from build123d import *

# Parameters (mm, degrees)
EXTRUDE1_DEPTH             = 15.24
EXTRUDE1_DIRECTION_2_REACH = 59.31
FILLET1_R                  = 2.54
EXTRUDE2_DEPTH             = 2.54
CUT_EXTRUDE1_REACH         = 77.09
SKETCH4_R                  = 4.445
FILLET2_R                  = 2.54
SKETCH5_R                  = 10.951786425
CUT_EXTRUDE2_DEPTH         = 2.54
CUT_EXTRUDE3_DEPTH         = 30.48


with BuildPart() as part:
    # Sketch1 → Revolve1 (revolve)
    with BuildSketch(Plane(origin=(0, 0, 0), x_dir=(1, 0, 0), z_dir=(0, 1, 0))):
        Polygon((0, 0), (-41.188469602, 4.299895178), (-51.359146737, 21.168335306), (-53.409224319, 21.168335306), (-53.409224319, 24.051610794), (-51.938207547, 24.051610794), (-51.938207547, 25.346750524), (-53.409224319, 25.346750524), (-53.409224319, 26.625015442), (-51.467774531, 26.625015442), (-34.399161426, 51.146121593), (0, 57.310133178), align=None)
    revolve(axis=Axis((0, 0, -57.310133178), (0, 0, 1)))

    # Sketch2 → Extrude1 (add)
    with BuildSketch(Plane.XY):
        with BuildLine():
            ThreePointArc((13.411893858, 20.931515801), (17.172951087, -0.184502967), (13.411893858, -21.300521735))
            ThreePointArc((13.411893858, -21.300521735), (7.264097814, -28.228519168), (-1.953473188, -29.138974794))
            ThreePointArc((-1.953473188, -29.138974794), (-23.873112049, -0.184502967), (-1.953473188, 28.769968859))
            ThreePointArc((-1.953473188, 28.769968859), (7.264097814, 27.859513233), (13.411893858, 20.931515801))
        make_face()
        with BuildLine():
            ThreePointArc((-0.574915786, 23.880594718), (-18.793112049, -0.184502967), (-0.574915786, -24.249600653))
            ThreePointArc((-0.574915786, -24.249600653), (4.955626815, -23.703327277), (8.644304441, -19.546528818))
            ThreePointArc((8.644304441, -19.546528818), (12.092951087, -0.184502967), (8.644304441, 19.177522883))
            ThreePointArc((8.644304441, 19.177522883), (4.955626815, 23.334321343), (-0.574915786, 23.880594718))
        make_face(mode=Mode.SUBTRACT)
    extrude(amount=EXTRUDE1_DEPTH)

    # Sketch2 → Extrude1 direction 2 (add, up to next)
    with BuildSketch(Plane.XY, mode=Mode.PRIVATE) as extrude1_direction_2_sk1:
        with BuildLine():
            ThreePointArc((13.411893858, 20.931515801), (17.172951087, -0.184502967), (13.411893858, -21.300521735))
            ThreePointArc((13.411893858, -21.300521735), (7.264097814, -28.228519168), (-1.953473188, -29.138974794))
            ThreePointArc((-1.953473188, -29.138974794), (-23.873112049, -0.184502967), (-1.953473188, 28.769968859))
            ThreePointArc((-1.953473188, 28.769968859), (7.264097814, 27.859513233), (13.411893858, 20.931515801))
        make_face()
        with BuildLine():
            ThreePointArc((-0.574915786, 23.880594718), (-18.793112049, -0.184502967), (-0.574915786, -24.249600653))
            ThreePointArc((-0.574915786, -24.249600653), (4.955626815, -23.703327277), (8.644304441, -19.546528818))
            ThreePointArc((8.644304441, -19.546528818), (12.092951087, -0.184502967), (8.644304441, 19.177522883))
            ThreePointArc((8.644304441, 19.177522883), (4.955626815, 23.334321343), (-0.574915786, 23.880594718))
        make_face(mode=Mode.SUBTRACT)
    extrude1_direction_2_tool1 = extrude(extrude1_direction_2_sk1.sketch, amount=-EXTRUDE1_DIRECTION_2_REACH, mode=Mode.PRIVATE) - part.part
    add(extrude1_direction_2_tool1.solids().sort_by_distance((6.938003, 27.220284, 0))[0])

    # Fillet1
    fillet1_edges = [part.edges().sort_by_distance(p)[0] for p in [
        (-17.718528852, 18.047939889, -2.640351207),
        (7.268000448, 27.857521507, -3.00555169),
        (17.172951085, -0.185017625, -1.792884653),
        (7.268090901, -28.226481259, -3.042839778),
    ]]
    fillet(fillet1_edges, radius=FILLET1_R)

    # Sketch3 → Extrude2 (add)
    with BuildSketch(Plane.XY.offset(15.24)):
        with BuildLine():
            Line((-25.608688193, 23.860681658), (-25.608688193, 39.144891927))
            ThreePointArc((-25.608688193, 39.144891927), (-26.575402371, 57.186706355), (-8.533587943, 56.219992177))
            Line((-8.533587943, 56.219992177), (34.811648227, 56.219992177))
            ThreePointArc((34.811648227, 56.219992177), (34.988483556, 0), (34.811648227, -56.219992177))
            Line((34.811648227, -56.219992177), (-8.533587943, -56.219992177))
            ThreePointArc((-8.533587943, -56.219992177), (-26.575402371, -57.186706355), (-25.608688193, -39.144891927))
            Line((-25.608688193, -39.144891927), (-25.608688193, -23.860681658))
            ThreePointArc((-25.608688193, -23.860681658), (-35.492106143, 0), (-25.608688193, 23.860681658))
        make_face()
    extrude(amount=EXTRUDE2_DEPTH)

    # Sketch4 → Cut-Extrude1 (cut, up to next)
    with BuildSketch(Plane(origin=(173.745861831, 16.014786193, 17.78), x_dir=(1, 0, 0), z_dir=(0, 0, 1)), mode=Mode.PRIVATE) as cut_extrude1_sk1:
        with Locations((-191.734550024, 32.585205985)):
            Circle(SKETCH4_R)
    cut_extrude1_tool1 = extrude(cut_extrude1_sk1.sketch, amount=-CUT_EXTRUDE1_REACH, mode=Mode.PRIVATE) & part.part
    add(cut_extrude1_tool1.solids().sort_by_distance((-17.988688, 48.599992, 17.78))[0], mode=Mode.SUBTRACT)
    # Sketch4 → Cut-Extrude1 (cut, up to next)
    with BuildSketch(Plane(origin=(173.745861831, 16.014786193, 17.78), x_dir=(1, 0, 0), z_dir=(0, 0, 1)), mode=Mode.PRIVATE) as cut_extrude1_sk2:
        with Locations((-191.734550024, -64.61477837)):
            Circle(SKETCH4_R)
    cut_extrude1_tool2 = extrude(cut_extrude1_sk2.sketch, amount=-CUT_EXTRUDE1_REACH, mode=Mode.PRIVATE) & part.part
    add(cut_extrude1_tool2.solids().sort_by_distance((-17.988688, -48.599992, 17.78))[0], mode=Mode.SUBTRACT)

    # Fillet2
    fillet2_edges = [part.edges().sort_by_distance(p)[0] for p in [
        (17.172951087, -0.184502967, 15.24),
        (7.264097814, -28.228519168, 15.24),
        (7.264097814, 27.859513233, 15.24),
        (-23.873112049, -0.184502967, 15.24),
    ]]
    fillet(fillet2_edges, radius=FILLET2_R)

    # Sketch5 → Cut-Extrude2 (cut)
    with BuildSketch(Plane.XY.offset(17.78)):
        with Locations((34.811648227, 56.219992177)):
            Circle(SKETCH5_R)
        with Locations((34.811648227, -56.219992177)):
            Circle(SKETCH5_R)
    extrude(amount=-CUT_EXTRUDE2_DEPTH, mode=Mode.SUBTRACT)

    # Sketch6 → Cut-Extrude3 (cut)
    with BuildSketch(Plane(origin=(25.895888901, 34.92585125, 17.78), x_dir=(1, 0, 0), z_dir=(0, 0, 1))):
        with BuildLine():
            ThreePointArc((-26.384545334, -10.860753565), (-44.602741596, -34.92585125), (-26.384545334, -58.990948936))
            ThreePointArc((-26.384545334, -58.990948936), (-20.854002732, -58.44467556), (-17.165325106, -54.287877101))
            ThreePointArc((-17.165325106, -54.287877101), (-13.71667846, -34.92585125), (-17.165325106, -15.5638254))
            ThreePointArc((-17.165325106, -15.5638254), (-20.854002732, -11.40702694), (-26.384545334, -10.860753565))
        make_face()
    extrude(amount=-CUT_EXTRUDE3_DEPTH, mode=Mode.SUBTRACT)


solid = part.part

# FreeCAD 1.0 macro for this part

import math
import FreeCAD as App
import Part
import Sketcher
from FreeCAD import Vector
Q = App.Units.Quantity


def edges_at(feature, points):
    """Names of the edges that pass closest to the given points."""
    edges = feature.Shape.Edges
    near = lambda p: min(range(len(edges)), key=lambda i: edges[i].distToShape(Part.Vertex(*p))[0])
    return sorted({f"Edge{near(p) + 1}" for p in points})

doc = App.newDocument("Part")
body = doc.addObject("PartDesign::Body", "Body")
body.AllowCompound = True

# Sketch on XZ plane
sketch1 = body.newObject("Sketcher::SketchObject", "Sketch")
sketch1.AttachmentSupport = (doc.getObject("XZ_Plane"), [""])
sketch1.MapMode = "FlatFace"
sketch1.addGeometry([
    Part.LineSegment(Vector(-41.18847, -4.299895, 0), Vector(0, 0, 0)),  # 0
    Part.LineSegment(Vector(0, 0, 0), Vector(0, -57.310133, 0)),  # 1
    Part.LineSegment(Vector(0, -57.310133, 0), Vector(-34.399161, -51.146122, 0)),  # 2
    Part.LineSegment(Vector(-34.399161, -51.146122, 0), Vector(-51.467775, -26.625015, 0)),  # 3
    Part.LineSegment(Vector(-51.467775, -26.625015, 0), Vector(-53.409224, -26.625015, 0)),  # 4
    Part.LineSegment(Vector(-53.409224, -26.625015, 0), Vector(-53.409224, -25.346751, 0)),  # 5
    Part.LineSegment(Vector(-53.409224, -25.346751, 0), Vector(-51.938208, -25.346751, 0)),  # 6
    Part.LineSegment(Vector(-51.938208, -25.346751, 0), Vector(-51.938208, -24.051611, 0)),  # 7
    Part.LineSegment(Vector(-51.938208, -24.051611, 0), Vector(-53.409224, -24.051611, 0)),  # 8
    Part.LineSegment(Vector(-53.409224, -24.051611, 0), Vector(-53.409224, -21.168335, 0)),  # 9
    Part.LineSegment(Vector(-53.409224, -21.168335, 0), Vector(-51.359147, -21.168335, 0)),  # 10
    Part.LineSegment(Vector(-51.359147, -21.168335, 0), Vector(-41.18847, -4.299895, 0)),  # 11
], False)
sketch1.addConstraint([
    Sketcher.Constraint("Coincident", 0, 2, 1, 1),
    Sketcher.Constraint("Coincident", 1, 2, 2, 1),
    Sketcher.Constraint("Coincident", 2, 2, 3, 1),
    Sketcher.Constraint("Coincident", 3, 2, 4, 1),
    Sketcher.Constraint("Coincident", 4, 2, 5, 1),
    Sketcher.Constraint("Coincident", 5, 2, 6, 1),
    Sketcher.Constraint("Coincident", 6, 2, 7, 1),
    Sketcher.Constraint("Coincident", 7, 2, 8, 1),
    Sketcher.Constraint("Coincident", 8, 2, 9, 1),
    Sketcher.Constraint("Coincident", 9, 2, 10, 1),
    Sketcher.Constraint("Coincident", 10, 2, 11, 1),
    Sketcher.Constraint("Coincident", 11, 2, 0, 1),
    Sketcher.Constraint("Vertical", 1),
    Sketcher.Constraint("Horizontal", 4),
    Sketcher.Constraint("Vertical", 5),
    Sketcher.Constraint("Horizontal", 6),
    Sketcher.Constraint("Vertical", 7),
    Sketcher.Constraint("Horizontal", 8),
    Sketcher.Constraint("Vertical", 9),
    Sketcher.Constraint("Horizontal", 10),
    Sketcher.Constraint("Coincident", 0, 2, -1, 1),
    Sketcher.Constraint("Vertical", 5, 2, 8, 2),
    Sketcher.Constraint("DistanceX", 4, 2, 4, 1, 1.94145),
    Sketcher.Constraint("DistanceY", 7, 1, 7, 2, 1.29514),
    Sketcher.Constraint("DistanceX", 6, 1, 6, 2, 1.471017),
    Sketcher.Constraint("DistanceX", 10, 1, 10, 2, 2.050078),
    Sketcher.Constraint("DistanceY", 1, 2, 1, 1, 57.310133),
    Sketcher.Constraint("DistanceY", 5, 1, 5, 2, 1.278265),
    Sketcher.Constraint("DistanceY", 9, 1, 9, 2, 2.883275),
    Sketcher.Constraint("DistanceX", 2, 2, -1, 1, 34.399161),
    Sketcher.Constraint("DistanceY", 2, 2, -1, 1, 51.146122),
    Sketcher.Constraint("DistanceY", 5, 2, -1, 1, 25.346751),
    Sketcher.Constraint("DistanceX", 11, 2, -1, 1, 41.18847),
    Sketcher.Constraint("DistanceY", 10, 2, 11, 2, 16.86844),
    Sketcher.Constraint("Distance", 3, 29.876784),
])
revolution = body.newObject("PartDesign::Revolution", "Revolution")
revolution.Profile = sketch1
revolution.ReferenceAxis = (sketch1, ["V_Axis"])
revolution.Angle = 360

# Sketch on XY plane
sketch2 = body.newObject("Sketcher::SketchObject", "Sketch001")
sketch2.AttachmentSupport = (doc.getObject("XY_Plane"), [""])
sketch2.MapMode = "FlatFace"
sketch2.addGeometry([
    Part.ArcOfCircle(Part.Circle(Vector(-43.984294, -0.184503, 0), Vector(0, 0, 1), 61.157245), math.radians(-20.198535), math.radians(20.198535)),  # 0
    Part.ArcOfCircle(Part.Circle(Vector(1.49292, 16.546534, 0), Vector(0, 0, 1), 12.7), math.radians(20.198535), math.radians(105.74578)),  # 1
    Part.ArcOfCircle(Part.Circle(Vector(6.21023, -0.184503, 0), Vector(0, 0, 1), 30.083342), math.radians(105.74578), math.radians(254.25422)),  # 2
    Part.ArcOfCircle(Part.Circle(Vector(1.49292, -16.915539, 0), Vector(0, 0, 1), 12.7), math.radians(-105.74578), math.radians(-20.198535)),  # 3
    Part.ArcOfCircle(Part.Circle(Vector(1.49292, 16.546534, 0), Vector(0, 0, 1), 7.62), math.radians(20.198535), math.radians(105.74578)),  # 4
    Part.ArcOfCircle(Part.Circle(Vector(-43.984294, -0.184503, 0), Vector(0, 0, 1), 56.077245), math.radians(-20.198535), math.radians(20.198535)),  # 5
    Part.ArcOfCircle(Part.Circle(Vector(1.49292, -16.915539, 0), Vector(0, 0, 1), 7.62), math.radians(-105.74578), math.radians(-20.198535)),  # 6
    Part.ArcOfCircle(Part.Circle(Vector(6.21023, -0.184503, 0), Vector(0, 0, 1), 25.003342), math.radians(105.74578), math.radians(254.25422)),  # 7
], False)
sketch2.addConstraint([
    Sketcher.Constraint("Tangent", 0, 2, 1, 1),
    Sketcher.Constraint("Tangent", 1, 2, 2, 1),
    Sketcher.Constraint("Tangent", 2, 2, 3, 1),
    Sketcher.Constraint("Tangent", 3, 2, 0, 1),
    Sketcher.Constraint("Tangent", 4, 1, 5, 2),
    Sketcher.Constraint("Tangent", 5, 1, 6, 2),
    Sketcher.Constraint("Tangent", 6, 1, 7, 2),
    Sketcher.Constraint("Tangent", 7, 1, 4, 2),
    Sketcher.Constraint("Coincident", 4, 3, 1, 3),
    Sketcher.Constraint("Coincident", 5, 3, 0, 3),
    Sketcher.Constraint("Coincident", 6, 3, 3, 3),
    Sketcher.Constraint("Equal", 1, 3),
    Sketcher.Constraint("Horizontal", 0, 3, 2, 3),
    Sketcher.Constraint("Radius", 1, Q("0.5 in")),
    Sketcher.Constraint("Radius", 4, Q("0.3 in")),
    Sketcher.Constraint("Radius", 0, 61.157245),
    Sketcher.Constraint("Radius", 2, 30.083342),
    Sketcher.Constraint("Radius", 7, 25.003342),
    Sketcher.Constraint("DistanceY", 6, 1, -1, 1, 24.249601),
    Sketcher.Constraint("DistanceX", -1, 1, 1, 3, 1.49292),
    Sketcher.Constraint("DistanceX", -1, 1, 2, 3, 6.21023),
])
pad1 = body.newObject("PartDesign::Pad", "Pad")
pad1.Profile = sketch2
pad1.Length = Q("0.6 in")

# Sketch on XY plane
sketch3 = body.newObject("Sketcher::SketchObject", "Sketch002")
sketch3.AttachmentSupport = (doc.getObject("XY_Plane"), [""])
sketch3.MapMode = "FlatFace"
sketch3.addGeometry([
    Part.ArcOfCircle(Part.Circle(Vector(-43.984294, -0.184503, 0), Vector(0, 0, 1), 61.157245), math.radians(-20.198535), math.radians(20.198535)),  # 0
    Part.ArcOfCircle(Part.Circle(Vector(1.49292, 16.546534, 0), Vector(0, 0, 1), 12.7), math.radians(20.198535), math.radians(105.74578)),  # 1
    Part.ArcOfCircle(Part.Circle(Vector(6.21023, -0.184503, 0), Vector(0, 0, 1), 30.083342), math.radians(105.74578), math.radians(254.25422)),  # 2
    Part.ArcOfCircle(Part.Circle(Vector(1.49292, -16.915539, 0), Vector(0, 0, 1), 12.7), math.radians(-105.74578), math.radians(-20.198535)),  # 3
    Part.ArcOfCircle(Part.Circle(Vector(1.49292, 16.546534, 0), Vector(0, 0, 1), 7.62), math.radians(20.198535), math.radians(105.74578)),  # 4
    Part.ArcOfCircle(Part.Circle(Vector(-43.984294, -0.184503, 0), Vector(0, 0, 1), 56.077245), math.radians(-20.198535), math.radians(20.198535)),  # 5
    Part.ArcOfCircle(Part.Circle(Vector(1.49292, -16.915539, 0), Vector(0, 0, 1), 7.62), math.radians(-105.74578), math.radians(-20.198535)),  # 6
    Part.ArcOfCircle(Part.Circle(Vector(6.21023, -0.184503, 0), Vector(0, 0, 1), 25.003342), math.radians(105.74578), math.radians(254.25422)),  # 7
], False)
sketch3.addConstraint([
    Sketcher.Constraint("Tangent", 0, 2, 1, 1),
    Sketcher.Constraint("Tangent", 1, 2, 2, 1),
    Sketcher.Constraint("Tangent", 2, 2, 3, 1),
    Sketcher.Constraint("Tangent", 3, 2, 0, 1),
    Sketcher.Constraint("Tangent", 4, 1, 5, 2),
    Sketcher.Constraint("Tangent", 5, 1, 6, 2),
    Sketcher.Constraint("Tangent", 6, 1, 7, 2),
    Sketcher.Constraint("Tangent", 7, 1, 4, 2),
    Sketcher.Constraint("Coincident", 4, 3, 1, 3),
    Sketcher.Constraint("Coincident", 5, 3, 0, 3),
    Sketcher.Constraint("Coincident", 6, 3, 3, 3),
    Sketcher.Constraint("Equal", 1, 3),
    Sketcher.Constraint("Horizontal", 0, 3, 2, 3),
    Sketcher.Constraint("Radius", 1, Q("0.5 in")),
    Sketcher.Constraint("Radius", 4, Q("0.3 in")),
    Sketcher.Constraint("Radius", 0, 61.157245),
    Sketcher.Constraint("Radius", 2, 30.083342),
    Sketcher.Constraint("Radius", 7, 25.003342),
    Sketcher.Constraint("DistanceY", 6, 1, -1, 1, 24.249601),
    Sketcher.Constraint("DistanceX", -1, 1, 1, 3, 1.49292),
    Sketcher.Constraint("DistanceX", -1, 1, 2, 3, 6.21023),
])
pad2 = body.newObject("PartDesign::Pad", "Pad001")
pad2.Profile = sketch3
pad2.Type = "UpToFirst"
pad2.Reversed = True
doc.recompute()

fillet = body.newObject("PartDesign::Fillet", "Fillet")
fillet.Base = (pad2, edges_at(pad2, [
    (-17.719, 18.048, -2.64),
    (7.268, 27.858, -3.006),
    (17.173, -0.185, -1.793),
    (7.268, -28.226, -3.043),
]))
fillet.Radius = Q("0.1 in")

# Sketch on XY plane
sketch4 = body.newObject("Sketcher::SketchObject", "Sketch003")
sketch4.AttachmentSupport = (doc.getObject("XY_Plane"), [""])
sketch4.MapMode = "FlatFace"
sketch4.AttachmentOffset = App.Placement(Vector(0, 0, 0.6 * 25.4), App.Rotation())
sketch4.addGeometry([
    Part.LineSegment(Vector(-25.608688, 39.144892, 0), Vector(-25.608688, 23.860682, 0)),  # 0
    Part.ArcOfCircle(Part.Circle(Vector(-1.748007, 0, 0), Vector(0, 0, 1), 33.7441), math.radians(135), math.radians(225)),  # 1
    Part.LineSegment(Vector(-25.608688, -23.860682, 0), Vector(-25.608688, -39.144892, 0)),  # 2
    Part.ArcOfCircle(Part.Circle(Vector(-17.988688, -48.599992, 0), Vector(0, 0, 1), 12.143448), math.radians(128.865836), math.radians(321.134164)),  # 3
    Part.LineSegment(Vector(-8.533588, -56.219992, 0), Vector(34.811648, -56.219992, 0)),  # 4
    Part.ArcOfCircle(Part.Circle(Vector(-8901.910068, 0, 0), Vector(0, 0, 1), 8936.898551), math.radians(-0.360437), math.radians(0.360437)),  # 5
    Part.LineSegment(Vector(34.811648, 56.219992, 0), Vector(-8.533588, 56.219992, 0)),  # 6
    Part.ArcOfCircle(Part.Circle(Vector(-17.988688, 48.599992, 0), Vector(0, 0, 1), 12.143448), math.radians(38.865836), math.radians(231.134164)),  # 7
], False)
sketch4.addConstraint([
    Sketcher.Constraint("Coincident", 0, 2, 1, 1),
    Sketcher.Constraint("Coincident", 1, 2, 2, 1),
    Sketcher.Constraint("Coincident", 2, 2, 3, 1),
    Sketcher.Constraint("Coincident", 3, 2, 4, 1),
    Sketcher.Constraint("Coincident", 4, 2, 5, 1),
    Sketcher.Constraint("Coincident", 5, 2, 6, 1),
    Sketcher.Constraint("Coincident", 6, 2, 7, 1),
    Sketcher.Constraint("Coincident", 7, 2, 0, 1),
    Sketcher.Constraint("Vertical", 0),
    Sketcher.Constraint("Vertical", 2),
    Sketcher.Constraint("Horizontal", 4),
    Sketcher.Constraint("Horizontal", 6),
    Sketcher.Constraint("Equal", 3, 7),
    Sketcher.Constraint("Symmetric", 3, 3, 7, 3, -1),
    Sketcher.Constraint("Symmetric", 0, 2, 1, 2, -1),
    Sketcher.Constraint("PointOnObject", 5, 3, -1),
    Sketcher.Constraint("Vertical", 3, 2, 6, 2),
    Sketcher.Constraint("DistanceX", 0, 2, 7, 3, Q("0.3 in")),
    Sketcher.Constraint("DistanceY", 3, 2, 3, 3, Q("0.3 in")),
    Sketcher.Constraint("Radius", 1, 33.7441),
    Sketcher.Constraint("Radius", 5, 8936.898551),
    Sketcher.Constraint("Radius", 3, 12.143448),
    Sketcher.Constraint("DistanceY", 0, 2, 0, 1, 15.28421),
    Sketcher.Constraint("DistanceX", 4, 1, 4, 2, 43.345236),
    Sketcher.Constraint("DistanceX", 3, 3, -1, 1, 17.988688),
    Sketcher.Constraint("DistanceY", -1, 1, 0, 2, 23.860682),
])
pad3 = body.newObject("PartDesign::Pad", "Pad002")
pad3.Profile = sketch4
pad3.Length = Q("0.1 in")

# Sketch on XY plane
sketch5 = body.newObject("Sketcher::SketchObject", "Sketch004")
sketch5.AttachmentSupport = (doc.getObject("XY_Plane"), [""])
sketch5.MapMode = "FlatFace"
sketch5.AttachmentOffset = App.Placement(Vector(0, 0, 0.7 * 25.4), App.Rotation())
sketch5.addGeometry(Part.Circle(Vector(-17.988688, 48.599992, 0), Vector(0, 0, 1), 4.445), False)
sketch5.addConstraint([
    Sketcher.Constraint("Diameter", 0, Q("0.35 in")),
    Sketcher.Constraint("DistanceX", 0, 3, -1, 1, 17.988688),
    Sketcher.Constraint("DistanceY", -1, 1, 0, 3, 48.599992),
])
pocket1 = body.newObject("PartDesign::Pocket", "Pocket")
pocket1.Profile = sketch5
pocket1.Type = "UpToFirst"

# Sketch on XY plane
sketch6 = body.newObject("Sketcher::SketchObject", "Sketch005")
sketch6.AttachmentSupport = (doc.getObject("XY_Plane"), [""])
sketch6.MapMode = "FlatFace"
sketch6.AttachmentOffset = App.Placement(Vector(0, 0, 0.7 * 25.4), App.Rotation())
sketch6.addGeometry(Part.Circle(Vector(-17.988688, -48.599992, 0), Vector(0, 0, 1), 4.445), False)
sketch6.addConstraint([
    Sketcher.Constraint("Diameter", 0, Q("0.35 in")),
    Sketcher.Constraint("DistanceX", 0, 3, -1, 1, 17.988688),
    Sketcher.Constraint("DistanceY", 0, 3, -1, 1, 48.599992),
])
pocket2 = body.newObject("PartDesign::Pocket", "Pocket001")
pocket2.Profile = sketch6
pocket2.Type = "UpToFirst"
doc.recompute()

fillet2 = body.newObject("PartDesign::Fillet", "Fillet001")
fillet2.Base = (pocket2, edges_at(pocket2, [
    (17.173, -0.185, 15.24),
    (7.264, -28.229, 15.24),
    (7.264, 27.86, 15.24),
    (-23.873, -0.185, 15.24),
]))
fillet2.Radius = Q("0.1 in")

# Sketch on XY plane
sketch7 = body.newObject("Sketcher::SketchObject", "Sketch006")
sketch7.AttachmentSupport = (doc.getObject("XY_Plane"), [""])
sketch7.MapMode = "FlatFace"
sketch7.AttachmentOffset = App.Placement(Vector(0, 0, 0.7 * 25.4), App.Rotation())
sketch7.addGeometry([
    Part.Circle(Vector(34.811648, 56.219992, 0), Vector(0, 0, 1), 10.951786),
    Part.Circle(Vector(34.811648, -56.219992, 0), Vector(0, 0, 1), 10.951786),
], False)
sketch7.addConstraint([
    Sketcher.Constraint("Equal", 0, 1),
    Sketcher.Constraint("Symmetric", 0, 3, 1, 3, -1),
    Sketcher.Constraint("Diameter", 0, 21.903573),
    Sketcher.Constraint("DistanceX", -1, 1, 0, 3, 34.811648),
    Sketcher.Constraint("DistanceY", -1, 1, 0, 3, 56.219992),
])
pocket3 = body.newObject("PartDesign::Pocket", "Pocket002")
pocket3.Profile = sketch7
pocket3.Length = Q("0.1 in")

# Sketch on XY plane
sketch8 = body.newObject("Sketcher::SketchObject", "Sketch007")
sketch8.AttachmentSupport = (doc.getObject("XY_Plane"), [""])
sketch8.MapMode = "FlatFace"
sketch8.AttachmentOffset = App.Placement(Vector(0, 0, 0.7 * 25.4), App.Rotation())
sketch8.addGeometry([
    Part.ArcOfCircle(Part.Circle(Vector(6.29649, 0, 0), Vector(0, 0, 1), 25.003342), math.radians(105.74578), math.radians(254.25422)),
    Part.ArcOfCircle(Part.Circle(Vector(1.57918, -16.731036, 0), Vector(0, 0, 1), 7.62), math.radians(-105.74578), math.radians(-20.198535)),
    Part.ArcOfCircle(Part.Circle(Vector(-43.898035, 0, 0), Vector(0, 0, 1), 56.077245), math.radians(-20.198535), math.radians(20.198535)),
    Part.ArcOfCircle(Part.Circle(Vector(1.57918, 16.731036, 0), Vector(0, 0, 1), 7.62), math.radians(20.198535), math.radians(105.74578)),
], False)
sketch8.addConstraint([
    Sketcher.Constraint("Tangent", 0, 2, 1, 1),
    Sketcher.Constraint("Tangent", 1, 2, 2, 1),
    Sketcher.Constraint("Tangent", 2, 2, 3, 1),
    Sketcher.Constraint("Tangent", 3, 2, 0, 1),
    Sketcher.Constraint("Equal", 1, 3),
    Sketcher.Constraint("Symmetric", 1, 3, 3, 3, -1),
    Sketcher.Constraint("Radius", 1, Q("0.3 in")),
    Sketcher.Constraint("Radius", 0, 25.003342),
    Sketcher.Constraint("Radius", 2, 56.077245),
    Sketcher.Constraint("DistanceX", 2, 3, 1, 2, 52.628599),
    Sketcher.Constraint("DistanceX", -1, 1, 0, 3, 6.29649),
])
pocket4 = body.newObject("PartDesign::Pocket", "Pocket003")
pocket4.Profile = sketch8
pocket4.Length = Q("1.2 in")

doc.recompute()
